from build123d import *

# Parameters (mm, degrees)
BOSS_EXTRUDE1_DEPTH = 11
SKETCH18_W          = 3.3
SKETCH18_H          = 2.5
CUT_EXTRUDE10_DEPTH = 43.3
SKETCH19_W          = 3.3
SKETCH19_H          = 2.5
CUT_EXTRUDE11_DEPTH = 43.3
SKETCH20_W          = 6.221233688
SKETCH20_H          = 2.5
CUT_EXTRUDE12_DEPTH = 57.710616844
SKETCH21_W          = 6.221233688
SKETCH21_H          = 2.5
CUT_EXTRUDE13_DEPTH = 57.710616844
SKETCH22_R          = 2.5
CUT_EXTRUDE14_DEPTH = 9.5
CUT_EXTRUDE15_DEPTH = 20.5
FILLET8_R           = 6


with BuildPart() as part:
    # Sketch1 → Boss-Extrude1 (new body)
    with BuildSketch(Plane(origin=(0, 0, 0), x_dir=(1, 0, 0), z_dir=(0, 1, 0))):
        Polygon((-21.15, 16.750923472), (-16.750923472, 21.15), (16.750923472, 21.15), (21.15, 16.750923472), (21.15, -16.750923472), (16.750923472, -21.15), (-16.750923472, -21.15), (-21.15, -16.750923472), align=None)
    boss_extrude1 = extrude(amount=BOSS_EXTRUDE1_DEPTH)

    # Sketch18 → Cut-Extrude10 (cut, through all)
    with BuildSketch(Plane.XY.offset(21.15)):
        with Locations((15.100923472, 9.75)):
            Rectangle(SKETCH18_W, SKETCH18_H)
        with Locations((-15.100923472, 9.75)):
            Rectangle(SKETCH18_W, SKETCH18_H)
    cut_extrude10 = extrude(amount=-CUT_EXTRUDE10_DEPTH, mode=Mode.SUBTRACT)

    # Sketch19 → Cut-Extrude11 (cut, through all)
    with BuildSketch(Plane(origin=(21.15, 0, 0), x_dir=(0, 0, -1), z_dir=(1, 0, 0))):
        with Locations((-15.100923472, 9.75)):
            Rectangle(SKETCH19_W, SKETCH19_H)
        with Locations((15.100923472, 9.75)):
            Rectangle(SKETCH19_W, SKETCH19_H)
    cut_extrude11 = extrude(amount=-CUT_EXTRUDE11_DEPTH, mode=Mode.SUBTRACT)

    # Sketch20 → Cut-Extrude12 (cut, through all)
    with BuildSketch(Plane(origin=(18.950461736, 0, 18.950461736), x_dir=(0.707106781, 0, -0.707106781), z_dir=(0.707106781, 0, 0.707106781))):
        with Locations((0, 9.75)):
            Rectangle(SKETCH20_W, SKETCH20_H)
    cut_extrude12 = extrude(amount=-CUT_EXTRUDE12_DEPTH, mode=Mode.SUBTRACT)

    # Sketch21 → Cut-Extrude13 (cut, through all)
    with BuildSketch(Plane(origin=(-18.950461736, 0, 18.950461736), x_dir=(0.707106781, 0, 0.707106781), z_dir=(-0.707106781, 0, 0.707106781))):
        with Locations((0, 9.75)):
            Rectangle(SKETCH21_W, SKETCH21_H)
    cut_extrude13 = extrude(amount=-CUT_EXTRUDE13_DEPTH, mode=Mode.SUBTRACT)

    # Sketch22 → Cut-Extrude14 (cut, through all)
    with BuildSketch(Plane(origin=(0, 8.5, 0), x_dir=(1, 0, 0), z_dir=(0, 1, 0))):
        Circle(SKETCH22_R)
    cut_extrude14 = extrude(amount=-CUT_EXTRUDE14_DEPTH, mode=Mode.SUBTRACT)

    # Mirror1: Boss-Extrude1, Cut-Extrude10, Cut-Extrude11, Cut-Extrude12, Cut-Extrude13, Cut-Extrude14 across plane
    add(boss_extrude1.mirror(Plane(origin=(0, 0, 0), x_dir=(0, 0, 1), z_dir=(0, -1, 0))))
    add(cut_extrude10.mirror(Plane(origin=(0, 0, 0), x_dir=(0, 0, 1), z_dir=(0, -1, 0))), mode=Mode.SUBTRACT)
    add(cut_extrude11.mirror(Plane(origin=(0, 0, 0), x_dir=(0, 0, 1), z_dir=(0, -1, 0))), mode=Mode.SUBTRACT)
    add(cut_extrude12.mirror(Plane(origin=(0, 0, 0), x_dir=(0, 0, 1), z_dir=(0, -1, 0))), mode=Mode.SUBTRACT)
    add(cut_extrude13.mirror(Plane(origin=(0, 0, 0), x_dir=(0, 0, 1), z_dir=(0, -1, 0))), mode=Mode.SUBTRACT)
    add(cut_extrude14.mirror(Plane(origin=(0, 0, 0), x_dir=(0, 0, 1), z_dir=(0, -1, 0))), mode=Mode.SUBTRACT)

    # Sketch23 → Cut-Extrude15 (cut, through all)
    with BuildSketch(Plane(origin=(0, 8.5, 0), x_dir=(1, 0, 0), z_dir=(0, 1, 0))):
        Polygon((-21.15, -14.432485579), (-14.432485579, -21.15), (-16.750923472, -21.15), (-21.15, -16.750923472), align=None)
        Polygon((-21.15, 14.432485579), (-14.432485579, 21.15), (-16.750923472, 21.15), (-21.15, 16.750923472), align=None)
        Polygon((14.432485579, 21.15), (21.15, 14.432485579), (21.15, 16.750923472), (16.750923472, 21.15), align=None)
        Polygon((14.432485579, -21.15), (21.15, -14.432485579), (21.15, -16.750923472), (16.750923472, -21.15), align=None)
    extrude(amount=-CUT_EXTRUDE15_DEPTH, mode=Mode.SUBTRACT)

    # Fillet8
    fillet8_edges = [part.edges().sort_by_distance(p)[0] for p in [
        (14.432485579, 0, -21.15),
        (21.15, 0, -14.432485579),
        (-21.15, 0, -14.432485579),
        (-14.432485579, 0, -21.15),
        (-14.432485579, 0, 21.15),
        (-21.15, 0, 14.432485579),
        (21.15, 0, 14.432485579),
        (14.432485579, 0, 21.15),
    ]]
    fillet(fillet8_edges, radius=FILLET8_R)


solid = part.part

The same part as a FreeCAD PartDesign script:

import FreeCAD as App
import Part
import Sketcher

V = App.Vector


def edges_at(feature, points):
    """Names of the edges that pass closest to the given points."""
    edges = feature.Shape.Edges
    near = lambda p: min(range(len(edges)), key=lambda i: edges[i].distToShape(Part.Vertex(*p))[0])
    return sorted({f"Edge{near(p) + 1}" for p in points})

doc = App.newDocument("Part")
body = doc.addObject("PartDesign::Body", "Body")

sketch1 = body.newObject("Sketcher::SketchObject", "Sketch")
sketch1.AttachmentSupport = (doc.getObject("XZ_Plane"), [""])
sketch1.MapMode = "FlatFace"
sketch1.addGeometry([
    Part.LineSegment(V(-17, -21, 0), V(-21, -17, 0)),
    Part.LineSegment(V(-21, -17, 0), V(-21, 17, 0)),
    Part.LineSegment(V(-21, 17, 0), V(-17, 21, 0)),
    Part.LineSegment(V(-17, 21, 0), V(17, 21, 0)),
    Part.LineSegment(V(17, 21, 0), V(21, 17, 0)),
    Part.LineSegment(V(21, 17, 0), V(21, -17, 0)),
    Part.LineSegment(V(21, -17, 0), V(17, -21, 0)),
    Part.LineSegment(V(17, -21, 0), V(-17, -21, 0)),
], False)
sketch1.addConstraint([
    Sketcher.Constraint("Coincident", 0, 2, 1, 1),
    Sketcher.Constraint("Coincident", 1, 2, 2, 1),
    Sketcher.Constraint("Coincident", 2, 2, 3, 1),
    Sketcher.Constraint("Coincident", 3, 2, 4, 1),
    Sketcher.Constraint("Coincident", 4, 2, 5, 1),
    Sketcher.Constraint("Coincident", 5, 2, 6, 1),
    Sketcher.Constraint("Coincident", 6, 2, 7, 1),
    Sketcher.Constraint("Coincident", 7, 2, 0, 1),
    Sketcher.Constraint("Vertical", 1),
    Sketcher.Constraint("Horizontal", 3),
    Sketcher.Constraint("Vertical", 5),
    Sketcher.Constraint("Horizontal", 7),
    Sketcher.Constraint("Symmetric", 0, 2, 4, 2, -1, 1),
    Sketcher.Constraint("Symmetric", 2, 2, 6, 2, -1, 1),
    Sketcher.Constraint("Perpendicular", 0, 2),
    Sketcher.Constraint("Perpendicular", 2, 4),
    Sketcher.Constraint("Perpendicular", 4, 6),
    Sketcher.Constraint("Horizontal", 1, 2, 4, 2),
    Sketcher.Constraint("Vertical", 3, 2, 6, 2),
    Sketcher.Constraint("Equal", 7, 1),
    Sketcher.Constraint("DistanceX", 1, 2, 4, 2, 42.3),
    Sketcher.Constraint("DistanceX", 3, 1, 3, 2, 33.501847),
])
pad1 = body.newObject("PartDesign::Pad", "Pad")
pad1.Profile = sketch1
pad1.Length = 11
pad1.Reversed = True

sketch2 = body.newObject("Sketcher::SketchObject", "Sketch001")
sketch2.AttachmentSupport = (doc.getObject("XY_Plane"), [""])
sketch2.MapMode = "FlatFace"
sketch2.AttachmentOffset = App.Placement(V(0, 0, 21.15), App.Rotation())
sketch2.addGeometry([
    Part.LineSegment(V(13.5, 11, 0), V(13.5, 8.5, 0)),
    Part.LineSegment(V(13.5, 8.5, 0), V(16.8, 8.5, 0)),
    Part.LineSegment(V(16.8, 8.5, 0), V(16.8, 11, 0)),
    Part.LineSegment(V(16.8, 11, 0), V(13.5, 11, 0)),
    Part.LineSegment(V(-16.8, 11, 0), V(-16.8, 8.5, 0)),
    Part.LineSegment(V(-16.8, 8.5, 0), V(-13.5, 8.5, 0)),
    Part.LineSegment(V(-13.5, 8.5, 0), V(-13.5, 11, 0)),
    Part.LineSegment(V(-13.5, 11, 0), V(-16.8, 11, 0)),
], False)
sketch2.addConstraint([
    Sketcher.Constraint("Coincident", 0, 2, 1, 1),
    Sketcher.Constraint("Coincident", 1, 2, 2, 1),
    Sketcher.Constraint("Coincident", 2, 2, 3, 1),
    Sketcher.Constraint("Coincident", 3, 2, 0, 1),
    Sketcher.Constraint("Coincident", 4, 2, 5, 1),
    Sketcher.Constraint("Coincident", 5, 2, 6, 1),
    Sketcher.Constraint("Coincident", 6, 2, 7, 1),
    Sketcher.Constraint("Coincident", 7, 2, 4, 1),
    Sketcher.Constraint("Vertical", 0),
    Sketcher.Constraint("Horizontal", 1),
    Sketcher.Constraint("Vertical", 2),
    Sketcher.Constraint("Horizontal", 3),
    Sketcher.Constraint("Vertical", 4),
    Sketcher.Constraint("Horizontal", 5),
    Sketcher.Constraint("Vertical", 6),
    Sketcher.Constraint("Horizontal", 7),
    Sketcher.Constraint("Symmetric", 1, 2, 4, 2, -2),
    Sketcher.Constraint("Symmetric", 3, 2, 6, 2, -2),
    Sketcher.Constraint("DistanceX", 1, 1, 1, 2, 3.3),
    Sketcher.Constraint("DistanceY", 0, 2, 0, 1, 2.5),
    Sketcher.Constraint("DistanceY", -1, 1, 2, 2, 11.0),
    Sketcher.Constraint("DistanceX", -1, 1, 0, 2, 13.450923),
])
pocket1 = body.newObject("PartDesign::Pocket", "Pocket")
pocket1.Profile = sketch2
pocket1.Type = "ThroughAll"

sketch3 = body.newObject("Sketcher::SketchObject", "Sketch002")
sketch3.AttachmentSupport = (doc.getObject("YZ_Plane"), [""])
sketch3.MapMode = "FlatFace"
sketch3.AttachmentOffset = App.Placement(V(0, 0, 21.15), App.Rotation())
sketch3.addGeometry([
    Part.LineSegment(V(11, 16.8, 0), V(8.5, 16.8, 0)),
    Part.LineSegment(V(8.5, 16.8, 0), V(8.5, 13.5, 0)),
    Part.LineSegment(V(8.5, 13.5, 0), V(11, 13.5, 0)),
    Part.LineSegment(V(11, 13.5, 0), V(11, 16.8, 0)),
    Part.LineSegment(V(11, -13.5, 0), V(8.5, -13.5, 0)),
    Part.LineSegment(V(8.5, -13.5, 0), V(8.5, -16.8, 0)),
    Part.LineSegment(V(8.5, -16.8, 0), V(11, -16.8, 0)),
    Part.LineSegment(V(11, -16.8, 0), V(11, -13.5, 0)),
], False)
sketch3.addConstraint([
    Sketcher.Constraint("Coincident", 0, 2, 1, 1),
    Sketcher.Constraint("Coincident", 1, 2, 2, 1),
    Sketcher.Constraint("Coincident", 2, 2, 3, 1),
    Sketcher.Constraint("Coincident", 3, 2, 0, 1),
    Sketcher.Constraint("Coincident", 4, 2, 5, 1),
    Sketcher.Constraint("Coincident", 5, 2, 6, 1),
    Sketcher.Constraint("Coincident", 6, 2, 7, 1),
    Sketcher.Constraint("Coincident", 7, 2, 4, 1),
    Sketcher.Constraint("Horizontal", 0),
    Sketcher.Constraint("Vertical", 1),
    Sketcher.Constraint("Horizontal", 2),
    Sketcher.Constraint("Vertical", 3),
    Sketcher.Constraint("Horizontal", 4),
    Sketcher.Constraint("Vertical", 5),
    Sketcher.Constraint("Horizontal", 6),
    Sketcher.Constraint("Vertical", 7),
    Sketcher.Constraint("Symmetric", 1, 2, 4, 2, -1),
    Sketcher.Constraint("Symmetric", 3, 2, 6, 2, -1),
    Sketcher.Constraint("DistanceX", 0, 2, 0, 1, 2.5),
    Sketcher.Constraint("DistanceY", 1, 2, 1, 1, 3.3),
    Sketcher.Constraint("DistanceX", -1, 1, 2, 2, 11.0),
    Sketcher.Constraint("DistanceY", -1, 1, 0, 2, 16.750923),
])
pocket2 = body.newObject("PartDesign::Pocket", "Pocket001")
pocket2.Profile = sketch3
pocket2.Type = "ThroughAll"

sketch4 = body.newObject("Sketcher::SketchObject", "Sketch003")
sketch4.Placement = App.Placement(V(18.950462, 0, 18.950462), App.Rotation(V(0.707106781, 0, -0.707106781), V(0, 0.999999999, 0), V(0.707106781, 0, 0.707106781), "ZXY"))
sketch4.addGeometry([
    Part.LineSegment(V(-3.1, 11, 0), V(-3.1, 8.5, 0)),
    Part.LineSegment(V(-3.1, 8.5, 0), V(3.1, 8.5, 0)),
    Part.LineSegment(V(3.1, 8.5, 0), V(3.1, 11, 0)),
    Part.LineSegment(V(3.1, 11, 0), V(-3.1, 11, 0)),
], False)
sketch4.addConstraint([
    Sketcher.Constraint("Coincident", 0, 2, 1, 1),
    Sketcher.Constraint("Coincident", 1, 2, 2, 1),
    Sketcher.Constraint("Coincident", 2, 2, 3, 1),
    Sketcher.Constraint("Coincident", 3, 2, 0, 1),
    Sketcher.Constraint("Vertical", 0),
    Sketcher.Constraint("Horizontal", 1),
    Sketcher.Constraint("Vertical", 2),
    Sketcher.Constraint("Horizontal", 3),
    Sketcher.Constraint("DistanceY", 0, 2, 0, 1, 2.5),
    Sketcher.Constraint("DistanceY", -1, 1, 2, 2, 11.0),
    Sketcher.Constraint("DistanceX", 1, 1, 1, 2, 6.221234),
    Sketcher.Constraint("DistanceX", 0, 2, -1, 1, 3.110617),
])
pocket3 = body.newObject("PartDesign::Pocket", "Pocket002")
pocket3.Profile = sketch4
pocket3.Type = "ThroughAll"

sketch5 = body.newObject("Sketcher::SketchObject", "Sketch004")
sketch5.Placement = App.Placement(V(-18.950462, 0, 18.950462), App.Rotation(V(0.707106781, 0, 0.707106781), V(0, 0.999999999, 0), V(-0.707106781, 0, 0.707106781), "ZXY"))
sketch5.addGeometry([
    Part.LineSegment(V(-3.1, 11, 0), V(-3.1, 8.5, 0)),
    Part.LineSegment(V(-3.1, 8.5, 0), V(3.1, 8.5, 0)),
    Part.LineSegment(V(3.1, 8.5, 0), V(3.1, 11, 0)),
    Part.LineSegment(V(3.1, 11, 0), V(-3.1, 11, 0)),
], False)
sketch5.addConstraint([
    Sketcher.Constraint("Coincident", 0, 2, 1, 1),
    Sketcher.Constraint("Coincident", 1, 2, 2, 1),
    Sketcher.Constraint("Coincident", 2, 2, 3, 1),
    Sketcher.Constraint("Coincident", 3, 2, 0, 1),
    Sketcher.Constraint("Vertical", 0),
    Sketcher.Constraint("Horizontal", 1),
    Sketcher.Constraint("Vertical", 2),
    Sketcher.Constraint("Horizontal", 3),
    Sketcher.Constraint("DistanceY", 0, 2, 0, 1, 2.5),
    Sketcher.Constraint("DistanceY", -1, 1, 2, 2, 11.0),
    Sketcher.Constraint("DistanceX", 1, 1, 1, 2, 6.221234),
    Sketcher.Constraint("DistanceX", 0, 2, -1, 1, 3.110617),
])
pocket4 = body.newObject("PartDesign::Pocket", "Pocket003")
pocket4.Profile = sketch5
pocket4.Type = "ThroughAll"

sketch6 = body.newObject("Sketcher::SketchObject", "Sketch005")
sketch6.AttachmentSupport = (doc.getObject("XZ_Plane"), [""])
sketch6.MapMode = "FlatFace"
sketch6.AttachmentOffset = App.Placement(V(0, 0, -8.5), App.Rotation())
sketch6.addGeometry(Part.Circle(V(0, 0, 0), V(0, 0, 1), 2.5), False)
sketch6.addConstraint([
    Sketcher.Constraint("Coincident", 0, 3, -1, 1),
    Sketcher.Constraint("Diameter", 0, 5.0),
])
pocket5 = body.newObject("PartDesign::Pocket", "Pocket004")
pocket5.Profile = sketch6
pocket5.Type = "ThroughAll"
pocket5.Reversed = True
doc.recompute()

mirrored = body.newObject("PartDesign::Mirrored", "Mirrored")
mirrored.Originals = [pad1, pocket1, pocket2, pocket3, pocket4, pocket5]
mirrored.MirrorPlane = (doc.getObject("XZ_Plane"), [""])
body.Tip = mirrored

sketch7 = body.newObject("Sketcher::SketchObject", "Sketch006")
sketch7.AttachmentSupport = (doc.getObject("XZ_Plane"), [""])
sketch7.MapMode = "FlatFace"
sketch7.AttachmentOffset = App.Placement(V(0, 0, -8.5), App.Rotation())
sketch7.addGeometry([
    Part.LineSegment(V(-14.4, 21.1, 0), V(-21.1, 14.4, 0)),
    Part.LineSegment(V(-21.1, 14.4, 0), V(-21.1, 16.8, 0)),
    Part.LineSegment(V(-21.1, 16.8, 0), V(-16.8, 21.1, 0)),
    Part.LineSegment(V(-16.8, 21.1, 0), V(-14.4, 21.1, 0)),
    Part.LineSegment(V(-21.1, -14.4, 0), V(-14.4, -21.1, 0)),
    Part.LineSegment(V(-14.4, -21.1, 0), V(-16.8, -21.1, 0)),
    Part.LineSegment(V(-16.8, -21.1, 0), V(-21.1, -16.8, 0)),
    Part.LineSegment(V(-21.1, -16.8, 0), V(-21.1, -14.4, 0)),
    Part.LineSegment(V(14.4, -21.1, 0), V(21.1, -14.4, 0)),
    Part.LineSegment(V(21.1, -14.4, 0), V(21.1, -16.8, 0)),
    Part.LineSegment(V(21.1, -16.8, 0), V(16.8, -21.1, 0)),
    Part.LineSegment(V(16.8, -21.1, 0), V(14.4, -21.1, 0)),
    Part.LineSegment(V(21.1, 14.4, 0), V(14.4, 21.1, 0)),
    Part.LineSegment(V(14.4, 21.1, 0), V(16.8, 21.1, 0)),
    Part.LineSegment(V(16.8, 21.1, 0), V(21.1, 16.8, 0)),
    Part.LineSegment(V(21.1, 16.8, 0), V(21.1, 14.4, 0)),
], False)
sketch7.addConstraint([
    Sketcher.Constraint("Coincident", 0, 2, 1, 1),
    Sketcher.Constraint("Coincident", 1, 2, 2, 1),
    Sketcher.Constraint("Coincident", 2, 2, 3, 1),
    Sketcher.Constraint("Coincident", 3, 2, 0, 1),
    Sketcher.Constraint("Coincident", 4, 2, 5, 1),
    Sketcher.Constraint("Coincident", 5, 2, 6, 1),
    Sketcher.Constraint("Coincident", 6, 2, 7, 1),
    Sketcher.Constraint("Coincident", 7, 2, 4, 1),
    Sketcher.Constraint("Coincident", 8, 2, 9, 1),
    Sketcher.Constraint("Coincident", 9, 2, 10, 1),
    Sketcher.Constraint("Coincident", 10, 2, 11, 1),
    Sketcher.Constraint("Coincident", 11, 2, 8, 1),
    Sketcher.Constraint("Coincident", 12, 2, 13, 1),
    Sketcher.Constraint("Coincident", 13, 2, 14, 1),
    Sketcher.Constraint("Coincident", 14, 2, 15, 1),
    Sketcher.Constraint("Coincident", 15, 2, 12, 1),
    Sketcher.Constraint("Vertical", 1),
    Sketcher.Constraint("Horizontal", 3),
    Sketcher.Constraint("Horizontal", 5),
    Sketcher.Constraint("Vertical", 7),
    Sketcher.Constraint("Vertical", 9),
    Sketcher.Constraint("Horizontal", 11),
    Sketcher.Constraint("Horizontal", 13),
    Sketcher.Constraint("Vertical", 15),
    Sketcher.Constraint("Symmetric", 0, 2, 8, 2, -1, 1),
    Sketcher.Constraint("Symmetric", 2, 2, 10, 2, -1, 1),
    Sketcher.Constraint("Symmetric", 4, 2, 12, 2, -1, 1),
    Sketcher.Constraint("Symmetric", 6, 2, 14, 2, -1, 1),
    Sketcher.Constraint("Symmetric", 7, 2, 8, 2, -2),
    Sketcher.Constraint("Symmetric", 5, 2, 10, 2, -2),
    Sketcher.Constraint("Parallel", 0, 2),
    Sketcher.Constraint("Perpendicular", 2, 4),
    Sketcher.Constraint("Parallel", 4, 6),
    Sketcher.Constraint("Perpendicular", 6, 8),
    Sketcher.Constraint("Parallel", 8, 10),
    Sketcher.Constraint("Perpendicular", 10, 12),
    Sketcher.Constraint("Parallel", 12, 14),
    Sketcher.Constraint("Horizontal", 6, 2, 9, 2),
    Sketcher.Constraint("Distance", 0, 9.5),
    Sketcher.Constraint("DistanceY", 4, 2, 3, 2, 42.3),
    Sketcher.Constraint("DistanceX", 7, 2, 8, 2, 42.3),
    Sketcher.Constraint("DistanceX", 3, 1, 3, 2, 2.318438),
])
pocket6 = body.newObject("PartDesign::Pocket", "Pocket005")
pocket6.Profile = sketch7
pocket6.Type = "ThroughAll"
pocket6.Reversed = True
doc.recompute()

fillet = body.newObject("PartDesign::Fillet", "Fillet")
fillet.Base = (pocket6, edges_at(pocket6, [
    (14.432, 0, -21.15),
    (21.15, 0, -14.432),
    (-21.15, 0, -14.432),
    (-14.432, 0, -21.15),
    (-14.432, 0, 21.15),
    (-21.15, 0, 14.432),
    (21.15, 0, 14.432),
    (14.432, 0, 21.15),
]))
fillet.Radius = 6

doc.recompute()
